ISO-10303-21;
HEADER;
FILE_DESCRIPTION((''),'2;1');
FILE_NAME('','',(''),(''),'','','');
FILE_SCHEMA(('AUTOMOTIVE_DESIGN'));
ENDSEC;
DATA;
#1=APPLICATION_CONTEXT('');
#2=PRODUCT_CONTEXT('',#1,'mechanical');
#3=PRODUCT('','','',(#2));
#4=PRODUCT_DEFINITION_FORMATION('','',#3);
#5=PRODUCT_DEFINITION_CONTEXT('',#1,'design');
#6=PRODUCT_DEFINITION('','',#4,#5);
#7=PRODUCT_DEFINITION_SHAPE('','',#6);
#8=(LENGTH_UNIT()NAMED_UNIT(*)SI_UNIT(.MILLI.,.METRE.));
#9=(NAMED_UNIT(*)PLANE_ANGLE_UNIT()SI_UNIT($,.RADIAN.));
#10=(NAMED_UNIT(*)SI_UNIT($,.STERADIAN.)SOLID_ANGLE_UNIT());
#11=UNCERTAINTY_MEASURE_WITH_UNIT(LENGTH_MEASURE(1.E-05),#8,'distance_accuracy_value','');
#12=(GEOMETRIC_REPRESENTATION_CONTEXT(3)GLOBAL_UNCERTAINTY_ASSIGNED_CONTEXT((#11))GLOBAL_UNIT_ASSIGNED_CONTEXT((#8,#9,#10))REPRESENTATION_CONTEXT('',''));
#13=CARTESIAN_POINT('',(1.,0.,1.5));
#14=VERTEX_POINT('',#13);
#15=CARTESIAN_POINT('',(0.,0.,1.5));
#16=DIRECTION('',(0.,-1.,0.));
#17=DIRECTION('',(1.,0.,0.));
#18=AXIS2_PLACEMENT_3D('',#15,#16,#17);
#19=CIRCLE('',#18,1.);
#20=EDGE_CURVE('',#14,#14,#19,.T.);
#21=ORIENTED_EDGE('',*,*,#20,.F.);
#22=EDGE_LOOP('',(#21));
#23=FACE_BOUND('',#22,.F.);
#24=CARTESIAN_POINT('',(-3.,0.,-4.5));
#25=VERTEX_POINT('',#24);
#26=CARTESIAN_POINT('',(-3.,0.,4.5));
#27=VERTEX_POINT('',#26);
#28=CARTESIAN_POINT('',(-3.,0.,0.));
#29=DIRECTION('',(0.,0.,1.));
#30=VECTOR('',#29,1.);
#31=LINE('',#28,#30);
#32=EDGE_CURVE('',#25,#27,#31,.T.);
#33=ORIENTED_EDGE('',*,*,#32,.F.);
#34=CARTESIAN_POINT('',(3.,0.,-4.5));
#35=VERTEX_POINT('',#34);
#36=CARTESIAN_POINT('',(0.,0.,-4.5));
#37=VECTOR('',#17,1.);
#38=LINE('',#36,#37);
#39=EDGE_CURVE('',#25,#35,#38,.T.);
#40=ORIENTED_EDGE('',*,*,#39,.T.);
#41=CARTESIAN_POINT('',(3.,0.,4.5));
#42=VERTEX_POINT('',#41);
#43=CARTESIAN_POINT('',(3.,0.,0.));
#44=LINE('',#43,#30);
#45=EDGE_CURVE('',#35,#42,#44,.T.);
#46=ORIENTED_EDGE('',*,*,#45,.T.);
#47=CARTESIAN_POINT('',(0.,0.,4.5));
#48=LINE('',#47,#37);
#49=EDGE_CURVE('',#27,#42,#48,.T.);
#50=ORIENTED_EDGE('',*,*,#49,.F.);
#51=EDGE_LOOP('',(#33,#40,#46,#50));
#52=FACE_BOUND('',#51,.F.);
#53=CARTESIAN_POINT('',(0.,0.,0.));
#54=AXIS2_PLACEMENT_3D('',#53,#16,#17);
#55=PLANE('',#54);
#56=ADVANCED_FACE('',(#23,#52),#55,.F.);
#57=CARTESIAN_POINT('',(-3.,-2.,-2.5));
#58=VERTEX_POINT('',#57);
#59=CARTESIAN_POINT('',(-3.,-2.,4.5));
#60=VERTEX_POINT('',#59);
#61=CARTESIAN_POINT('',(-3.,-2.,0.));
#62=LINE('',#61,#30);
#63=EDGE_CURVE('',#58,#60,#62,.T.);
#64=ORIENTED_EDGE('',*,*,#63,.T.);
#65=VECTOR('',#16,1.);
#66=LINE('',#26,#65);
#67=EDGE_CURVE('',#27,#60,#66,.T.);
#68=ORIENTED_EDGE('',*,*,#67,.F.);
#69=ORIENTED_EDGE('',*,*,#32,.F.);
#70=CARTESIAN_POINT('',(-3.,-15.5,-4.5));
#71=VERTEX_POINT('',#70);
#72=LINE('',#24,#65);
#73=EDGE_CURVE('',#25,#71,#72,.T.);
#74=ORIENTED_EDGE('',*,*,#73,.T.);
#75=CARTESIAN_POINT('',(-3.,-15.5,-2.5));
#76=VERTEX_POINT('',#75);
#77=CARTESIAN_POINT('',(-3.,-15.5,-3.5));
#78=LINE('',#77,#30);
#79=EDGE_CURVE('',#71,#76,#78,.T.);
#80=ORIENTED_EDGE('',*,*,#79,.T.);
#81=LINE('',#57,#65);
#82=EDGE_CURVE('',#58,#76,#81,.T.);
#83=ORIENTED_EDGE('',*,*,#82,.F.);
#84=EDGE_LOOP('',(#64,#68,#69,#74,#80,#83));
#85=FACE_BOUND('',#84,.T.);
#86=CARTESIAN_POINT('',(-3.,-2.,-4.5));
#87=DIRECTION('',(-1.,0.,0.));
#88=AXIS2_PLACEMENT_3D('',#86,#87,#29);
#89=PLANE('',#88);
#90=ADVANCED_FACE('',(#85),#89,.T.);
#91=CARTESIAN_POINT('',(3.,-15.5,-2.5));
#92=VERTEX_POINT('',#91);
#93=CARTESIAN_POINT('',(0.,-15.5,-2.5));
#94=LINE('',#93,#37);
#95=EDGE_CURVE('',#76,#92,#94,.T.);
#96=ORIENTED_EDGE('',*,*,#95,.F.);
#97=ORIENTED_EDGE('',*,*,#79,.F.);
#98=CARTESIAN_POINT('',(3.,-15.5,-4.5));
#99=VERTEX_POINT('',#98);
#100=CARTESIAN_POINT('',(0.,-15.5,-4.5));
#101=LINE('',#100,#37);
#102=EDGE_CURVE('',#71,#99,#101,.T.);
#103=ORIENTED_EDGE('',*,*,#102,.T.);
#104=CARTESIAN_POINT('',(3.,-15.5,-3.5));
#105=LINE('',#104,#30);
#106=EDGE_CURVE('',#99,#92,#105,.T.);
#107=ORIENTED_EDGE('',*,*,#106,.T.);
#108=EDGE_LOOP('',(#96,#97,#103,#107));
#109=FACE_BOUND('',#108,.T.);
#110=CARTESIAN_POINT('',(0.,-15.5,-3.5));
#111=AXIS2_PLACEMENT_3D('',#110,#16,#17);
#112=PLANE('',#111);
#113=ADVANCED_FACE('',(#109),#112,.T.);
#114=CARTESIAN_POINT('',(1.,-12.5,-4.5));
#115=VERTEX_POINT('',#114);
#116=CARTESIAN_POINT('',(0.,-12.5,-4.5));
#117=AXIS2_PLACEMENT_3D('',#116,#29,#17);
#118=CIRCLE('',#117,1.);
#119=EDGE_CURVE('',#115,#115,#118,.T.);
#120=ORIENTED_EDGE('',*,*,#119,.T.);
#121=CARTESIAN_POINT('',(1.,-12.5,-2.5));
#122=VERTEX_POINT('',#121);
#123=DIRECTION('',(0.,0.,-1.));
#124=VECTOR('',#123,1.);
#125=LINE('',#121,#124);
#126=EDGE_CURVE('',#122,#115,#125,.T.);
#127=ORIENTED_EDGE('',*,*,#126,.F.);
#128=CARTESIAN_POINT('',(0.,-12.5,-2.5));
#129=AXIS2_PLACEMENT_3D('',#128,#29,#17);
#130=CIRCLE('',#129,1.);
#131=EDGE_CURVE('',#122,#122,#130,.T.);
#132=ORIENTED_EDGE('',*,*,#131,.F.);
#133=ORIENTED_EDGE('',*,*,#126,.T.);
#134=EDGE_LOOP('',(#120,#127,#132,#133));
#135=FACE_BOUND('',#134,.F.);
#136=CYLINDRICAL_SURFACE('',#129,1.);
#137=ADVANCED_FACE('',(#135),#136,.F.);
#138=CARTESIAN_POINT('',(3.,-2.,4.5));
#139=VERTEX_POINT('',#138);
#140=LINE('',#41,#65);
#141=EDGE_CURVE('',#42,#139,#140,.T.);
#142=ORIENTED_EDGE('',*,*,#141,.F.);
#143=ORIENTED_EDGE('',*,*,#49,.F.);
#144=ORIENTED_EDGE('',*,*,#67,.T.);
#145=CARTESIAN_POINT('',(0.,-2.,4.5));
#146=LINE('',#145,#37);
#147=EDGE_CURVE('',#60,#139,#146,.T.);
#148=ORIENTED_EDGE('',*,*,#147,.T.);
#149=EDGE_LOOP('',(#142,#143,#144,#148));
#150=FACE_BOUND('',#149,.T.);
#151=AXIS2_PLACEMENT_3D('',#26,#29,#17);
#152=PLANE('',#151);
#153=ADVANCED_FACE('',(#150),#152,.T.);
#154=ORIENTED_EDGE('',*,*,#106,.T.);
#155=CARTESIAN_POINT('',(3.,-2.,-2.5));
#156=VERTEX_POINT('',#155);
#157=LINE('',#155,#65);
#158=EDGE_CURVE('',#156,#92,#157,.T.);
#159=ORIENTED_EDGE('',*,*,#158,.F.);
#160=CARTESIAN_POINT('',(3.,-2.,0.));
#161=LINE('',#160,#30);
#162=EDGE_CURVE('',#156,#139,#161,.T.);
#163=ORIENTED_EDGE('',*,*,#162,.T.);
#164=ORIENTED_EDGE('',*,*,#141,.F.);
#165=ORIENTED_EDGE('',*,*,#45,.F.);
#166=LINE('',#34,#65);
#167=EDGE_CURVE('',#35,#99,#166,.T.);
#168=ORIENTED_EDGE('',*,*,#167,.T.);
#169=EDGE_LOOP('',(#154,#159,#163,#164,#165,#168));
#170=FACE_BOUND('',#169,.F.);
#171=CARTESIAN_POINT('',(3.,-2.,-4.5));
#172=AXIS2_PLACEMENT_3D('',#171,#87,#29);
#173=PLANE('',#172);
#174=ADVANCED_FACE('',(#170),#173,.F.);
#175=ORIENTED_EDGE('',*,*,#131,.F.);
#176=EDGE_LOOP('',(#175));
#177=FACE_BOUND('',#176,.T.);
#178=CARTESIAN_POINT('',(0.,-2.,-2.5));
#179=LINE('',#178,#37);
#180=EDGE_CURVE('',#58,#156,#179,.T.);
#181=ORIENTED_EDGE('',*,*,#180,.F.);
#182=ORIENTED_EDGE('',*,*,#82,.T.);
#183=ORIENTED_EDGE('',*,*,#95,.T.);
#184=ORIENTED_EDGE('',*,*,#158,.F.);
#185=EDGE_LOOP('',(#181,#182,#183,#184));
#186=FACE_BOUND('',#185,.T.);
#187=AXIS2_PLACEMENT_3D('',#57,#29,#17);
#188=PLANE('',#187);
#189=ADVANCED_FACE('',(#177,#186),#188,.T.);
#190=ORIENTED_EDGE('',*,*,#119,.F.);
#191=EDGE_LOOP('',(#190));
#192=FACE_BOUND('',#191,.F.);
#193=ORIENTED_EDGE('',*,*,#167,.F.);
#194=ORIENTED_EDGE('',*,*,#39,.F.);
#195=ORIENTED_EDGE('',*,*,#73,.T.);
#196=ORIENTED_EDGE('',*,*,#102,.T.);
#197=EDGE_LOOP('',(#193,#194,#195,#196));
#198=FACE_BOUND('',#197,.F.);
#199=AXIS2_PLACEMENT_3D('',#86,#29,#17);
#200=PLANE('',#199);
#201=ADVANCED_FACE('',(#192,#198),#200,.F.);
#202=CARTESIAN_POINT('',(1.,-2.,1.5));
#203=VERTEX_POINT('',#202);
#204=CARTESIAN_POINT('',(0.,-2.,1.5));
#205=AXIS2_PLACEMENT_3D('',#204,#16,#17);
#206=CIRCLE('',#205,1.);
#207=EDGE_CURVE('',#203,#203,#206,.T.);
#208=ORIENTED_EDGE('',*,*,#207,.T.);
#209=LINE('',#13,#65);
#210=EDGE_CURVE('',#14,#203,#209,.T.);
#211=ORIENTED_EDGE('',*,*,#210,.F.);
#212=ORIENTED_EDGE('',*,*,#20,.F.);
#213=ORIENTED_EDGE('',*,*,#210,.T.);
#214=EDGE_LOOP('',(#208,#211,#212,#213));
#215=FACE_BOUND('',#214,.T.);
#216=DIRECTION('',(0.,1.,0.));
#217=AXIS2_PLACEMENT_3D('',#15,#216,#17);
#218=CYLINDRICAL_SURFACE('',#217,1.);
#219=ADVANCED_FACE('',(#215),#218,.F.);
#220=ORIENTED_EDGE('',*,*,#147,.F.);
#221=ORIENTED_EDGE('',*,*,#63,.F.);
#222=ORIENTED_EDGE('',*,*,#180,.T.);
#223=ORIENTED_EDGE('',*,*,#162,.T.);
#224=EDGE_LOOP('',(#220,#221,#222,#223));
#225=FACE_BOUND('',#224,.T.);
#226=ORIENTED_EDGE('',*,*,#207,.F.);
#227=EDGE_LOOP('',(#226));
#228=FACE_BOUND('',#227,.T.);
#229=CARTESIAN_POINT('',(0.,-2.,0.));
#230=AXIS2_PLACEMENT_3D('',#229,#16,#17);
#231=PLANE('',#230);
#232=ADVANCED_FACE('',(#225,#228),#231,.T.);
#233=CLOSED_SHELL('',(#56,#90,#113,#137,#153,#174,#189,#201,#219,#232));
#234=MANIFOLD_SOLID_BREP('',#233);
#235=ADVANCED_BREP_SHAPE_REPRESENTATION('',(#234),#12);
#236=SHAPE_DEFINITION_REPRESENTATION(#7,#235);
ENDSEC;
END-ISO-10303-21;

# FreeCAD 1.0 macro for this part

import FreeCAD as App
import Part
import Sketcher

V = App.Vector


def add_polygon(sketch, points):
    """Adds a closed chain of lines whose ends are joined by coincident constraints."""
    first, n = sketch.GeometryCount, len(points)
    for a, b in zip(points, points[1:] + points[:1]):
        sketch.addGeometry(Part.LineSegment(App.Vector(*a, 0), App.Vector(*b, 0)), False)
    for i in range(n):
        sketch.addConstraint(Sketcher.Constraint("Coincident", first + i, 2, first + (i + 1) % n, 1))

doc = App.newDocument("Part")
params = doc.addObject("Spreadsheet::Sheet", "Params")
for row, (alias, value) in enumerate([
    ("sketch1_diameter", "2 mm"),
    ("sketch1_width", "6 mm"),
    ("sketch1_height", "9 mm"),
    ("pad1_length", "2 mm"),
    ("sketch2_width", "6 mm"),
    ("sketch2_height", "2 mm"),
    ("pad2_length", "13.5 mm"),
    ("sketch3_diameter", "2 mm"),
    ("pocket1_length", "25 mm"),
], start=1):
    params.set(f"A{row}", alias)
    params.set(f"B{row}", "=" + value)
    params.setAlias(f"B{row}", alias)

body = doc.addObject("PartDesign::Body", "Body")

# Sketch on XZ plane
sketch1 = body.newObject("Sketcher::SketchObject", "Sketch")
sketch1.AttachmentSupport = (doc.getObject("XZ_Plane"), [""])
sketch1.MapMode = "FlatFace"
add_polygon(sketch1, [(-3, 4.5), (-3, -4.5), (3, -4.5), (3, 4.5)])  # lines 0-3
sketch1.addGeometry(Part.Circle(V(0, 1.5, 0), V(0, 0, 1), 1), False)  # 4
sketch1.addConstraint(Sketcher.Constraint("Vertical", 0))
sketch1.addConstraint(Sketcher.Constraint("Horizontal", 1))
sketch1.addConstraint(Sketcher.Constraint("Vertical", 2))
sketch1.addConstraint(Sketcher.Constraint("Horizontal", 3))
sketch1.addConstraint(Sketcher.Constraint("Symmetric", 0, 2, 2, 2, -1, 1))
sketch1.addConstraint(Sketcher.Constraint("PointOnObject", 4, 3, -2))
sketch1.addConstraint(Sketcher.Constraint("Diameter", 4, 2.0))
sketch1.addConstraint(Sketcher.Constraint("DistanceX", 1, 1, 1, 2, 6.0))
sketch1.addConstraint(Sketcher.Constraint("DistanceY", 0, 2, 0, 1, 9.0))
sketch1.addConstraint(Sketcher.Constraint("DistanceY", 0, 2, 4, 3, 6.0))
sketch1.setExpression("Constraints[10]", "Params.sketch1_diameter")
sketch1.setExpression("Constraints[11]", "Params.sketch1_width")
sketch1.setExpression("Constraints[12]", "Params.sketch1_height")
pad1 = body.newObject("PartDesign::Pad", "Pad")
pad1.Profile = sketch1
pad1.setExpression("Length", "Params.pad1_length")

# Sketch on XZ plane
sketch2 = body.newObject("Sketcher::SketchObject", "Sketch001")
sketch2.AttachmentSupport = (doc.getObject("XZ_Plane"), [""])
sketch2.MapMode = "FlatFace"
sketch2.AttachmentOffset = App.Placement(V(0, 0, 2), App.Rotation())
add_polygon(sketch2, [(-3, -2.5), (-3, -4.5), (3, -4.5), (3, -2.5)])  # lines 0-3
sketch2.addConstraint(Sketcher.Constraint("Vertical", 0))
sketch2.addConstraint(Sketcher.Constraint("Horizontal", 1))
sketch2.addConstraint(Sketcher.Constraint("Vertical", 2))
sketch2.addConstraint(Sketcher.Constraint("Horizontal", 3))
sketch2.addConstraint(Sketcher.Constraint("DistanceX", 1, 1, 1, 2, 6.0))
sketch2.addConstraint(Sketcher.Constraint("DistanceY", 0, 2, 0, 1, 2.0))
sketch2.addConstraint(Sketcher.Constraint("DistanceX", 0, 2, -1, 1, 3.0))
sketch2.addConstraint(Sketcher.Constraint("DistanceY", 0, 2, -1, 1, 4.5))
sketch2.setExpression("Constraints[8]", "Params.sketch2_width")
sketch2.setExpression("Constraints[9]", "Params.sketch2_height")
pad2 = body.newObject("PartDesign::Pad", "Pad001")
pad2.Profile = sketch2
pad2.setExpression("Length", "Params.pad2_length")

# Sketch on XY plane
sketch3 = body.newObject("Sketcher::SketchObject", "Sketch002")
sketch3.AttachmentSupport = (doc.getObject("XY_Plane"), [""])
sketch3.MapMode = "FlatFace"
sketch3.AttachmentOffset = App.Placement(V(0, 0, -2.5), App.Rotation())
sketch3.addGeometry(Part.Circle(V(0, -12.5, 0), V(0, 0, 1), 1), False)
sketch3.addConstraint(Sketcher.Constraint("PointOnObject", 0, 3, -2))
sketch3.addConstraint(Sketcher.Constraint("Diameter", 0, 2.0))
sketch3.addConstraint(Sketcher.Constraint("DistanceY", 0, 3, -1, 1, 12.5))
sketch3.setExpression("Constraints[1]", "Params.sketch3_diameter")
pocket1 = body.newObject("PartDesign::Pocket", "Pocket")
pocket1.Profile = sketch3
pocket1.setExpression("Length", "Params.pocket1_length")

doc.recompute()
